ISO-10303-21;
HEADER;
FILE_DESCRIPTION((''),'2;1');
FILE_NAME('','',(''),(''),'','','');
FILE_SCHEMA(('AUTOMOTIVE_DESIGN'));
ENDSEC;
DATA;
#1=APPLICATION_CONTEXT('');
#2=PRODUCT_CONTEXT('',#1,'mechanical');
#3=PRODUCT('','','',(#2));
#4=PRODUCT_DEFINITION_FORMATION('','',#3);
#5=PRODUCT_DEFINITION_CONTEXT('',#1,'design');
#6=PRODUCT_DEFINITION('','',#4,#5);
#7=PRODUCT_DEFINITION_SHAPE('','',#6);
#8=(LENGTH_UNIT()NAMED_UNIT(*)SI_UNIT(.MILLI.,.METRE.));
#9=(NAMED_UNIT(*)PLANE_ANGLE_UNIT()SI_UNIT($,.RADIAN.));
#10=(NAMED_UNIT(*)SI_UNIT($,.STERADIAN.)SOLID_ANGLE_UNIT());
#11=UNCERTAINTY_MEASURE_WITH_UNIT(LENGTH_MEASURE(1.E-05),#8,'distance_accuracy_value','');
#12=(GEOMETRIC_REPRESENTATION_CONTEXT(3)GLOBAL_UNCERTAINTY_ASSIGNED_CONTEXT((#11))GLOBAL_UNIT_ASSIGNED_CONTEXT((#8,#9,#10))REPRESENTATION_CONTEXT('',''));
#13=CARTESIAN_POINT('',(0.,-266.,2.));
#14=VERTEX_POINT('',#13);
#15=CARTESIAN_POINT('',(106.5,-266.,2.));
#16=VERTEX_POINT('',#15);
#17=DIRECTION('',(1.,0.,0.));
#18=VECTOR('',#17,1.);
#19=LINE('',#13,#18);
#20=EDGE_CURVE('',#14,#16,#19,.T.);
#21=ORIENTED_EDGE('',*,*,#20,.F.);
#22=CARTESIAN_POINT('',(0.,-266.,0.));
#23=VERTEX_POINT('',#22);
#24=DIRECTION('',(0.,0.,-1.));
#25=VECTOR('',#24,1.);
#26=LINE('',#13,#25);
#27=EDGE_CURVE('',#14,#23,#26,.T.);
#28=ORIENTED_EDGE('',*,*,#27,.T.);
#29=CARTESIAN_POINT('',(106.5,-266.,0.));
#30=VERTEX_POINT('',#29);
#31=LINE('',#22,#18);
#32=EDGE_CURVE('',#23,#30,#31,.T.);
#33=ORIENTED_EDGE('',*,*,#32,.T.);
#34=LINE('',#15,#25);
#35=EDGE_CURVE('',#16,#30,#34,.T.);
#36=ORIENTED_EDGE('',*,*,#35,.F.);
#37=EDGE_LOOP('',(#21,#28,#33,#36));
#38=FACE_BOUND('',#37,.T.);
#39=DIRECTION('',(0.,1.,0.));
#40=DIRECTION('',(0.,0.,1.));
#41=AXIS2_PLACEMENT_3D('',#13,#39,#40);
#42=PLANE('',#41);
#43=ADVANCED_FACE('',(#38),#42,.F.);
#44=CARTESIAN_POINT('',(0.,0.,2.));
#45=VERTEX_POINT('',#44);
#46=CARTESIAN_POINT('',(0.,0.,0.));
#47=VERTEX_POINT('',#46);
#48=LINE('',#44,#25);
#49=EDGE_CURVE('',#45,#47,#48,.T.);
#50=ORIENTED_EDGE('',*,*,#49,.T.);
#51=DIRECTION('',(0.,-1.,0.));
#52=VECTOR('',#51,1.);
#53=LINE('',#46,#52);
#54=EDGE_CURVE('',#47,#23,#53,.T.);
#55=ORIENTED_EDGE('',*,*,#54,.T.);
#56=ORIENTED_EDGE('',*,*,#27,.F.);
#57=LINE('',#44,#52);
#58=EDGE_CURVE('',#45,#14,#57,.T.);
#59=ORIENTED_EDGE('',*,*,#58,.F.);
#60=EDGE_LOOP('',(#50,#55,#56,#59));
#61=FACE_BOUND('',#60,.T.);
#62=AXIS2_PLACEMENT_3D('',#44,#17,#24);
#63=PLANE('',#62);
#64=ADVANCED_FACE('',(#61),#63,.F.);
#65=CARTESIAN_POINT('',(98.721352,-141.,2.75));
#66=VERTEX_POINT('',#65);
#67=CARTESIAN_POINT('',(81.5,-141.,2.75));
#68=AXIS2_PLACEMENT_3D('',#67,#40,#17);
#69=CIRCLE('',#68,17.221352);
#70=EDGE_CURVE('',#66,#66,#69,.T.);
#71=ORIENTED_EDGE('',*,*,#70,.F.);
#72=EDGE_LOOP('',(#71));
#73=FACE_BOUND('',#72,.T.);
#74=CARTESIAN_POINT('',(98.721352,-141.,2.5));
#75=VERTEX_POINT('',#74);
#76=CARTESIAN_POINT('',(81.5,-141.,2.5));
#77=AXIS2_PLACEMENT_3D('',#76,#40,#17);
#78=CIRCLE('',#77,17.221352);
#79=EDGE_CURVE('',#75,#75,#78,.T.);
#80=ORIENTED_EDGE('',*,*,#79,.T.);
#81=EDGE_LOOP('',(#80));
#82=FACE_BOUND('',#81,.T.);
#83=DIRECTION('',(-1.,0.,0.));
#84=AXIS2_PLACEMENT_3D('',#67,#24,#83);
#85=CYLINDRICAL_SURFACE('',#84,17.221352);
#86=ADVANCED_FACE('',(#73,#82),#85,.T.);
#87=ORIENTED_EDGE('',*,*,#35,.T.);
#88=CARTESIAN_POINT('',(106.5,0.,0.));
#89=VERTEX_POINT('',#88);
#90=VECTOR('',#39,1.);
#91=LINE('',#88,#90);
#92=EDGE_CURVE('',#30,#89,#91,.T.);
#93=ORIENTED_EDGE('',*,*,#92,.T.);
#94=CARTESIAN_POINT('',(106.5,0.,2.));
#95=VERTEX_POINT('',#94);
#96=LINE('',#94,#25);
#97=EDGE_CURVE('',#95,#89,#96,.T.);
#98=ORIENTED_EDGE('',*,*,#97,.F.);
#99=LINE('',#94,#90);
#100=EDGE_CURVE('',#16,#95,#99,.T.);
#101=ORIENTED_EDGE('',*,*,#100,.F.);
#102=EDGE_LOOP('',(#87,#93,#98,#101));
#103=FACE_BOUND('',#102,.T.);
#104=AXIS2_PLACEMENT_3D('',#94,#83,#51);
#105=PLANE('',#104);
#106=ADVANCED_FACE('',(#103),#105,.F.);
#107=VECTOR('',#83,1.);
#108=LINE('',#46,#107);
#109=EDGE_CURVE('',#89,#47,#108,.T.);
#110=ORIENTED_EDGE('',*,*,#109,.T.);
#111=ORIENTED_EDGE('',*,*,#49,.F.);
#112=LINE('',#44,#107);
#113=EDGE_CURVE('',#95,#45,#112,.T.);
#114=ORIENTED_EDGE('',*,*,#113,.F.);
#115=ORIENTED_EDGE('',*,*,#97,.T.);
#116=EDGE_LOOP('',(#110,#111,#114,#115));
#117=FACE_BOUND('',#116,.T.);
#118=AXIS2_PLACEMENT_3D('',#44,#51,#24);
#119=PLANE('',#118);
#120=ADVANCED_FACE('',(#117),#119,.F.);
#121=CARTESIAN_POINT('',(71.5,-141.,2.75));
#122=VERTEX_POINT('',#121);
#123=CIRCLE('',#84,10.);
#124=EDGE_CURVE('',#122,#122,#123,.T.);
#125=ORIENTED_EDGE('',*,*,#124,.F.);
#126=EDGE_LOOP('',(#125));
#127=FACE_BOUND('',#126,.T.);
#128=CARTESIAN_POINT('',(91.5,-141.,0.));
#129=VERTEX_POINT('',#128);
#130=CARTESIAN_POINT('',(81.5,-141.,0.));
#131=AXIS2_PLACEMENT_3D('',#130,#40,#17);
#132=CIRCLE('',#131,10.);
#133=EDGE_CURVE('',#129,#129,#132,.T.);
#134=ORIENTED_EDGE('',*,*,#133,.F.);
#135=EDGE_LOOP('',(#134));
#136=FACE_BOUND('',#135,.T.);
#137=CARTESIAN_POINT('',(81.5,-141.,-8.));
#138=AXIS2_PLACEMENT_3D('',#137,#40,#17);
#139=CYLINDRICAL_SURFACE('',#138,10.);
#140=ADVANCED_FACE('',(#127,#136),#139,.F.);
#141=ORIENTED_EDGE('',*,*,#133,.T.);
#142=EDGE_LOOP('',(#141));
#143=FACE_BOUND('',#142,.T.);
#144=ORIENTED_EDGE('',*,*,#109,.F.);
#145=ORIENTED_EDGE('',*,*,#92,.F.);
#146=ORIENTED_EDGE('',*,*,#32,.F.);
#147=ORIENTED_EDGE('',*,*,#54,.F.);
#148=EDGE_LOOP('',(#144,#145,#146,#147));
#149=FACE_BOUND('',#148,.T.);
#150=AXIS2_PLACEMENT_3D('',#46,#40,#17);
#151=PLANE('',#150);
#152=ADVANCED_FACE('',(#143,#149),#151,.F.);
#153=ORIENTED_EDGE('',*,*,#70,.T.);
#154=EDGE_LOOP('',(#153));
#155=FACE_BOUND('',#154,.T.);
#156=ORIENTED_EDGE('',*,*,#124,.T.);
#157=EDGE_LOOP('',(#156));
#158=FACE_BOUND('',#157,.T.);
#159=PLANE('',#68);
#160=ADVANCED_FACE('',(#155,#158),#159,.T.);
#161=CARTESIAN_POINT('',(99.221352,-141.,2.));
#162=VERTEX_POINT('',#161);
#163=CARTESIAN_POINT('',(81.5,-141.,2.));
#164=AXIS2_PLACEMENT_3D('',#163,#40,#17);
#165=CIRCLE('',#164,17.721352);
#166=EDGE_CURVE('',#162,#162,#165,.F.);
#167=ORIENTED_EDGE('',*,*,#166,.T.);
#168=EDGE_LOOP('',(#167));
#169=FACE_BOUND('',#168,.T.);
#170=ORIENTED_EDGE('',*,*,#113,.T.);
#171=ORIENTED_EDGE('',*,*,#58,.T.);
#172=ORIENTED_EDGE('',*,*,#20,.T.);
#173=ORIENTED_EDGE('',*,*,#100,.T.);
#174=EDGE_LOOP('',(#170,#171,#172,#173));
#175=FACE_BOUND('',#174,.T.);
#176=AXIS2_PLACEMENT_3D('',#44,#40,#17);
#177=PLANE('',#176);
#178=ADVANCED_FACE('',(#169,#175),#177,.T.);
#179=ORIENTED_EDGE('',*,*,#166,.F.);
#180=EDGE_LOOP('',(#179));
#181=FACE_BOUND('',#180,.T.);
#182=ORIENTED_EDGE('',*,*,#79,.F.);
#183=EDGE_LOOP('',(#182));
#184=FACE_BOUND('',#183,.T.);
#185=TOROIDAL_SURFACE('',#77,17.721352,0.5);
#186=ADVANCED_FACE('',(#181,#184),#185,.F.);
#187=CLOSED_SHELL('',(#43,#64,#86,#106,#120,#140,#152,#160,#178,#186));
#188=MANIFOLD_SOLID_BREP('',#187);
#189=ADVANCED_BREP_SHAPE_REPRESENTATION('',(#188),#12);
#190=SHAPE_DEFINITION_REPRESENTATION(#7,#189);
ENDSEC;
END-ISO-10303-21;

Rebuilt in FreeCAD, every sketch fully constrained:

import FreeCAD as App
import Part
import Sketcher


def edges_at(feature, points):
    """Names of the edges that pass closest to the given points."""
    edges = feature.Shape.Edges
    near = lambda p: min(range(len(edges)), key=lambda i: edges[i].distToShape(Part.Vertex(*p))[0])
    return sorted({f"Edge{near(p) + 1}" for p in points})

doc = App.newDocument("Part")
params = doc.addObject("Spreadsheet::Sheet", "Params")
for row, (alias, value) in enumerate([
    ("sketch1_height", "266 mm"),
    ("sketch1_width", "106.5 mm"),
    ("pad1_length", "2 mm"),
    ("sketch2_diameter", "20 mm"),
    ("pocket1_length", "10 mm"),
    ("pad2_length", "0.75 mm"),
    ("fillet_radius", "0.5 mm"),
    ("sketch4_diameter", "20 mm"),
    ("pocket2_length", "0.75 mm"),
], start=1):
    params.set(f"A{row}", alias)
    params.set(f"B{row}", "=" + value)
    params.setAlias(f"B{row}", alias)

body = doc.addObject("PartDesign::Body", "Body")

sketch1 = body.newObject("Sketcher::SketchObject", "Sketch")
sketch1.AttachmentSupport = (doc.getObject("XY_Plane"), [""])
sketch1.MapMode = "FlatFace"
sketch1.addGeometry(Part.LineSegment(App.Vector(0, 0, 0), App.Vector(0, -266, 0)), False)
sketch1.addGeometry(Part.LineSegment(App.Vector(0, -266, 0), App.Vector(106, -266, 0)), False)
sketch1.addGeometry(Part.LineSegment(App.Vector(106, -266, 0), App.Vector(106, 0, 0)), False)
sketch1.addGeometry(Part.LineSegment(App.Vector(106, 0, 0), App.Vector(0, 0, 0)), False)
sketch1.addConstraint(Sketcher.Constraint("Coincident", 0, 2, 1, 1))
sketch1.addConstraint(Sketcher.Constraint("Coincident", 1, 2, 2, 1))
sketch1.addConstraint(Sketcher.Constraint("Coincident", 2, 2, 3, 1))
sketch1.addConstraint(Sketcher.Constraint("Coincident", 3, 2, 0, 1))
sketch1.addConstraint(Sketcher.Constraint("Vertical", 0))
sketch1.addConstraint(Sketcher.Constraint("Horizontal", 1))
sketch1.addConstraint(Sketcher.Constraint("Vertical", 2))
sketch1.addConstraint(Sketcher.Constraint("Horizontal", 3))
sketch1.addConstraint(Sketcher.Constraint("Coincident", 3, 2, -1, 1))
sketch1.addConstraint(Sketcher.Constraint("DistanceY", 0, 2, 0, 1, 266.0))
sketch1.addConstraint(Sketcher.Constraint("DistanceX", 1, 1, 1, 2, 106.5))
sketch1.setExpression("Constraints[9]", "Params.sketch1_height")
sketch1.setExpression("Constraints[10]", "Params.sketch1_width")
pad1 = body.newObject("PartDesign::Pad", "Pad")
pad1.Profile = sketch1
pad1.setExpression("Length", "Params.pad1_length")

sketch2 = body.newObject("Sketcher::SketchObject", "Sketch001")
sketch2.AttachmentSupport = (doc.getObject("XY_Plane"), [""])
sketch2.MapMode = "FlatFace"
sketch2.AttachmentOffset = App.Placement(App.Vector(0, 0, 2), App.Rotation())
sketch2.addGeometry(Part.Circle(App.Vector(82, -141, 0), App.Vector(0, 0, 1), 10), False)
sketch2.addConstraint(Sketcher.Constraint("Diameter", 0, 20.0))
sketch2.addConstraint(Sketcher.Constraint("DistanceY", 0, 3, -1, 1, 141.0))
sketch2.addConstraint(Sketcher.Constraint("DistanceX", -1, 1, 0, 3, 81.5))
sketch2.setExpression("Constraints[0]", "Params.sketch2_diameter")
pocket1 = body.newObject("PartDesign::Pocket", "Pocket")
pocket1.Profile = sketch2
pocket1.setExpression("Length", "Params.pocket1_length")

sketch3 = body.newObject("Sketcher::SketchObject", "Sketch002")
sketch3.AttachmentSupport = (doc.getObject("XY_Plane"), [""])
sketch3.MapMode = "FlatFace"
sketch3.AttachmentOffset = App.Placement(App.Vector(0, 0, 2), App.Rotation())
sketch3.addGeometry(Part.Circle(App.Vector(82, -141, 0), App.Vector(0, 0, 1), 17), False)
sketch3.addConstraint(Sketcher.Constraint("DistanceY", 0, 3, -1, 1, 141.0))
sketch3.addConstraint(Sketcher.Constraint("DistanceX", -1, 1, 0, 3, 81.5))
sketch3.addConstraint(Sketcher.Constraint("Diameter", 0, 34.442703))
pad2 = body.newObject("PartDesign::Pad", "Pad001")
pad2.Profile = sketch3
pad2.setExpression("Length", "Params.pad2_length")
doc.recompute()

fillet = body.newObject("PartDesign::Fillet", "Fillet")
fillet.Base = (pad2, edges_at(pad2, [(64.279, -141, 2)]))
fillet.setExpression("Radius", "Params.fillet_radius")

sketch4 = body.newObject("Sketcher::SketchObject", "Sketch003")
sketch4.AttachmentSupport = (doc.getObject("XY_Plane"), [""])
sketch4.MapMode = "FlatFace"
sketch4.AttachmentOffset = App.Placement(App.Vector(0, 0, 2.75), App.Rotation())
sketch4.addGeometry(Part.Circle(App.Vector(82, -141, 0), App.Vector(0, 0, 1), 10), False)
sketch4.addConstraint(Sketcher.Constraint("Diameter", 0, 20.0))
sketch4.addConstraint(Sketcher.Constraint("DistanceY", 0, 3, -1, 1, 141.0))
sketch4.addConstraint(Sketcher.Constraint("DistanceX", -1, 1, 0, 3, 81.5))
sketch4.setExpression("Constraints[0]", "Params.sketch4_diameter")
pocket2 = body.newObject("PartDesign::Pocket", "Pocket001")
pocket2.Profile = sketch4
pocket2.setExpression("Length", "Params.pocket2_length")

doc.recompute()
